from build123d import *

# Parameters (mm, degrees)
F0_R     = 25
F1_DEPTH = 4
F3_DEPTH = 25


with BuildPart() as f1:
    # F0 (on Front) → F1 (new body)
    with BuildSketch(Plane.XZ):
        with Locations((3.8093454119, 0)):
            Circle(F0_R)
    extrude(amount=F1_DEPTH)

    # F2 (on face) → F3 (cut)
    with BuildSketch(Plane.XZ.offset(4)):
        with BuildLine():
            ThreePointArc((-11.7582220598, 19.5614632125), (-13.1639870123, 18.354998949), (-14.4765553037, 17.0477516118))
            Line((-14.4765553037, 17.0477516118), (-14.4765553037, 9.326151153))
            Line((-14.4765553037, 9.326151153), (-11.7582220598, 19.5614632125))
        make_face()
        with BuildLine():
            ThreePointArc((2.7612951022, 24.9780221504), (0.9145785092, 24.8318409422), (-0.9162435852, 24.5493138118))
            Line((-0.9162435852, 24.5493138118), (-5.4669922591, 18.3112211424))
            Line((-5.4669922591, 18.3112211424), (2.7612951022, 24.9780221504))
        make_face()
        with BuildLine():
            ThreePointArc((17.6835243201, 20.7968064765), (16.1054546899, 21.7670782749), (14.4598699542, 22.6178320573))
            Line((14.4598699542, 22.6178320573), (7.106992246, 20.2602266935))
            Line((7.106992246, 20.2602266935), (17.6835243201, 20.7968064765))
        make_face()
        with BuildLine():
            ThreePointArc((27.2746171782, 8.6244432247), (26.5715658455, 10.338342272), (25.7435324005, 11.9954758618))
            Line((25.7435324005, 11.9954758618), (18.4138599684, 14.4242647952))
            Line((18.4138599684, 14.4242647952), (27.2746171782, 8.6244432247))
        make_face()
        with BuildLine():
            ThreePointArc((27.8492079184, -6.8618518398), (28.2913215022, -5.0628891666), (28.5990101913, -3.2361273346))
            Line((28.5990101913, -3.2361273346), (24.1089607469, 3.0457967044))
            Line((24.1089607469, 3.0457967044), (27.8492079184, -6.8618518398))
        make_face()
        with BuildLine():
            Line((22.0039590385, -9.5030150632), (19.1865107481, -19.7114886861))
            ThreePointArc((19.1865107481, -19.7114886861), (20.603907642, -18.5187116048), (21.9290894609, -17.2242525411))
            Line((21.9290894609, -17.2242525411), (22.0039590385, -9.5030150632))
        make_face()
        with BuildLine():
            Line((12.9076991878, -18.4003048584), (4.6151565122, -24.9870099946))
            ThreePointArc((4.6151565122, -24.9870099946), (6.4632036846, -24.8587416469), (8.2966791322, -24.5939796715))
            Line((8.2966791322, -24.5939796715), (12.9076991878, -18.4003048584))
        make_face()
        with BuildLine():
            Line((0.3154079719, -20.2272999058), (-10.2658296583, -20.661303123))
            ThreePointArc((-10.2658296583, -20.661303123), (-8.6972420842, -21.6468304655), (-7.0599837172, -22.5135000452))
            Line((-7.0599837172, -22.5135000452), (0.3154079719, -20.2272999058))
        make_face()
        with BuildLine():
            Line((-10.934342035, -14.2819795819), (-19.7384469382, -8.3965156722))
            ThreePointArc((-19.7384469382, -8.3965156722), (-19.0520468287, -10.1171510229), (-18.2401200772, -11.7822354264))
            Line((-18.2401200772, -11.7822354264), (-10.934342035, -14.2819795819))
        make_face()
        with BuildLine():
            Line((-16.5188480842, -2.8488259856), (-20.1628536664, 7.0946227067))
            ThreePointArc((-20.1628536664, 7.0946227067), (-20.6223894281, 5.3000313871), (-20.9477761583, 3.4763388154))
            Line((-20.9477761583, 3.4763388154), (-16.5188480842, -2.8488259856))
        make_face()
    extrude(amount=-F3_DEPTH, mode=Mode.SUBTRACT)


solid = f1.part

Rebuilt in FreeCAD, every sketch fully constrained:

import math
import FreeCAD as App
import Part
import Sketcher
Q = App.Units.Quantity

doc = App.newDocument("Part")
body = doc.addObject("PartDesign::Body", "Body")

# Sketch on XZ plane
sketch1 = body.newObject("Sketcher::SketchObject", "Sketch")
sketch1.AttachmentSupport = (doc.getObject("XZ_Plane"), [""])
sketch1.MapMode = "FlatFace"
sketch1.addGeometry(Part.Circle(App.Vector(3.809345, 0, 0), App.Vector(0, 0, 1), 25), False)
sketch1.addConstraint([
    Sketcher.Constraint("PointOnObject", 0, 3, -1),
    Sketcher.Constraint("Diameter", 0, 50.0),
    Sketcher.Constraint("DistanceX", -1, 1, 0, 3, 3.809345),
])
pad1 = body.newObject("PartDesign::Pad", "Pad")
pad1.Profile = sketch1
pad1.Length = 4

# Sketch on XZ plane
sketch2 = body.newObject("Sketcher::SketchObject", "Sketch001")
sketch2.AttachmentSupport = (doc.getObject("XZ_Plane"), [""])
sketch2.MapMode = "FlatFace"
sketch2.AttachmentOffset = App.Placement(App.Vector(0, 0, 4), App.Rotation())
sketch2.addGeometry([
    Part.ArcOfCircle(Part.Circle(App.Vector(3.809345, 0, 0), App.Vector(0, 0, 1), 25), math.radians(128.51377), math.radians(137.006917)),  # 0
    Part.LineSegment(App.Vector(-14.476555, 17.047752, 0), App.Vector(-14.476555, 9.326151, 0)),  # 1
    Part.LineSegment(App.Vector(-14.476555, 9.326151, 0), App.Vector(-11.758222, 19.561463, 0)),  # 2
    Part.ArcOfCircle(Part.Circle(App.Vector(3.809345, 0, 0), App.Vector(0, 0, 1), 25), math.radians(92.402658), math.radians(100.895806)),  # 3
    Part.LineSegment(App.Vector(-0.916244, 24.549314, 0), App.Vector(-5.466992, 18.311221, 0)),  # 4
    Part.LineSegment(App.Vector(-5.466992, 18.311221, 0), App.Vector(2.761295, 24.978022, 0)),  # 5
    Part.ArcOfCircle(Part.Circle(App.Vector(3.809345, 0, 0), App.Vector(0, 0, 1), 25), math.radians(56.291547), math.radians(64.784695)),  # 6
    Part.LineSegment(App.Vector(14.45987, 22.617832, 0), App.Vector(7.106992, 20.260227, 0)),  # 7
    Part.LineSegment(App.Vector(7.106992, 20.260227, 0), App.Vector(17.683524, 20.796806, 0)),  # 8
    Part.ArcOfCircle(Part.Circle(App.Vector(3.809345, 0, 0), App.Vector(0, 0, 1), 25), math.radians(20.180436), math.radians(28.673584)),  # 9
    Part.LineSegment(App.Vector(25.743532, 11.995476, 0), App.Vector(18.41386, 14.424265, 0)),  # 10
    Part.LineSegment(App.Vector(18.41386, 14.424265, 0), App.Vector(27.274617, 8.624443, 0)),  # 11
    Part.ArcOfCircle(Part.Circle(App.Vector(3.809345, 0, 0), App.Vector(0, 0, 1), 25), math.radians(-15.930675), math.radians(-7.437528)),  # 12
    Part.LineSegment(App.Vector(28.59901, -3.236127, 0), App.Vector(24.108961, 3.045797, 0)),  # 13
    Part.LineSegment(App.Vector(24.108961, 3.045797, 0), App.Vector(27.849208, -6.861852, 0)),  # 14
    Part.LineSegment(App.Vector(22.003959, -9.503015, 0), App.Vector(19.186511, -19.711489, 0)),  # 15
    Part.ArcOfCircle(Part.Circle(App.Vector(3.809345, 0, 0), App.Vector(0, 0, 1), 25), math.radians(-52.041786), math.radians(-43.548639)),  # 16
    Part.LineSegment(App.Vector(21.929089, -17.224253, 0), App.Vector(22.003959, -9.503015, 0)),  # 17
    Part.LineSegment(App.Vector(12.907699, -18.400305, 0), App.Vector(4.615157, -24.98701, 0)),  # 18
    Part.ArcOfCircle(Part.Circle(App.Vector(3.809345, 0, 0), App.Vector(0, 0, 1), 25), math.radians(-88.152897), math.radians(-79.65975)),  # 19
    Part.LineSegment(App.Vector(8.296679, -24.59398, 0), App.Vector(12.907699, -18.400305, 0)),  # 20
    Part.LineSegment(App.Vector(0.315408, -20.2273, 0), App.Vector(-10.26583, -20.661303, 0)),  # 21
    Part.ArcOfCircle(Part.Circle(App.Vector(3.809345, 0, 0), App.Vector(0, 0, 1), 25), math.radians(-124.264008), math.radians(-115.770861)),  # 22
    Part.LineSegment(App.Vector(-7.059984, -22.5135, 0), App.Vector(0.315408, -20.2273, 0)),  # 23
    Part.LineSegment(App.Vector(-10.934342, -14.28198, 0), App.Vector(-19.738447, -8.396516, 0)),  # 24
    Part.ArcOfCircle(Part.Circle(App.Vector(3.809345, 0, 0), App.Vector(0, 0, 1), 25), math.radians(-160.375119), math.radians(-151.881972)),  # 25
    Part.LineSegment(App.Vector(-18.24012, -11.782235, 0), App.Vector(-10.934342, -14.28198, 0)),  # 26
    Part.LineSegment(App.Vector(-16.518848, -2.848826, 0), App.Vector(-20.162854, 7.094623, 0)),  # 27
    Part.ArcOfCircle(Part.Circle(App.Vector(3.809345, 0, 0), App.Vector(0, 0, 1), 25), math.radians(163.51377), math.radians(172.006917)),  # 28
    Part.LineSegment(App.Vector(-20.947776, 3.476339, 0), App.Vector(-16.518848, -2.848826, 0)),  # 29
], False)
sketch2.addConstraint([
    Sketcher.Constraint("Coincident", 0, 2, 1, 1),
    Sketcher.Constraint("Coincident", 1, 2, 2, 1),
    Sketcher.Constraint("Coincident", 2, 2, 0, 1),
    Sketcher.Constraint("Coincident", 3, 2, 4, 1),
    Sketcher.Constraint("Coincident", 4, 2, 5, 1),
    Sketcher.Constraint("Coincident", 5, 2, 3, 1),
    Sketcher.Constraint("Coincident", 6, 2, 7, 1),
    Sketcher.Constraint("Coincident", 7, 2, 8, 1),
    Sketcher.Constraint("Coincident", 8, 2, 6, 1),
    Sketcher.Constraint("Coincident", 9, 2, 10, 1),
    Sketcher.Constraint("Coincident", 10, 2, 11, 1),
    Sketcher.Constraint("Coincident", 11, 2, 9, 1),
    Sketcher.Constraint("Coincident", 12, 2, 13, 1),
    Sketcher.Constraint("Coincident", 13, 2, 14, 1),
    Sketcher.Constraint("Coincident", 14, 2, 12, 1),
    Sketcher.Constraint("Coincident", 15, 2, 16, 1),
    Sketcher.Constraint("Coincident", 16, 2, 17, 1),
    Sketcher.Constraint("Coincident", 17, 2, 15, 1),
    Sketcher.Constraint("Coincident", 18, 2, 19, 1),
    Sketcher.Constraint("Coincident", 19, 2, 20, 1),
    Sketcher.Constraint("Coincident", 20, 2, 18, 1),
    Sketcher.Constraint("Coincident", 21, 2, 22, 1),
    Sketcher.Constraint("Coincident", 22, 2, 23, 1),
    Sketcher.Constraint("Coincident", 23, 2, 21, 1),
    Sketcher.Constraint("Coincident", 24, 2, 25, 1),
    Sketcher.Constraint("Coincident", 25, 2, 26, 1),
    Sketcher.Constraint("Coincident", 26, 2, 24, 1),
    Sketcher.Constraint("Coincident", 27, 2, 28, 1),
    Sketcher.Constraint("Coincident", 28, 2, 29, 1),
    Sketcher.Constraint("Coincident", 29, 2, 27, 1),
    Sketcher.Constraint("Vertical", 1),
    Sketcher.Constraint("Coincident", 3, 3, 0, 3),
    Sketcher.Constraint("Coincident", 6, 3, 0, 3),
    Sketcher.Constraint("Coincident", 9, 3, 0, 3),
    Sketcher.Constraint("Coincident", 12, 3, 0, 3),
    Sketcher.Constraint("Coincident", 16, 3, 0, 3),
    Sketcher.Constraint("Coincident", 19, 3, 0, 3),
    Sketcher.Constraint("Coincident", 22, 3, 0, 3),
    Sketcher.Constraint("Coincident", 25, 3, 0, 3),
    Sketcher.Constraint("Coincident", 28, 3, 0, 3),
    Sketcher.Constraint("Equal", 0, 3),
    Sketcher.Constraint("Equal", 3, 6),
    Sketcher.Constraint("Equal", 6, 9),
    Sketcher.Constraint("Equal", 9, 12),
    Sketcher.Constraint("Equal", 12, 16),
    Sketcher.Constraint("Equal", 16, 19),
    Sketcher.Constraint("Equal", 19, 22),
    Sketcher.Constraint("Equal", 22, 25),
    Sketcher.Constraint("Equal", 25, 28),
    Sketcher.Constraint("PointOnObject", 0, 3, -1),
    Sketcher.Constraint("Equal", 2, 5),
    Sketcher.Constraint("Equal", 4, 7),
    Sketcher.Constraint("Equal", 5, 8),
    Sketcher.Constraint("Equal", 7, 10),
    Sketcher.Constraint("Equal", 8, 11),
    Sketcher.Constraint("Equal", 10, 13),
    Sketcher.Constraint("Equal", 11, 14),
    Sketcher.Constraint("Equal", 14, 15),
    Sketcher.Constraint("Equal", 13, 17),
    Sketcher.Constraint("Equal", 15, 18),
    Sketcher.Constraint("Equal", 17, 20),
    Sketcher.Constraint("Equal", 18, 21),
    Sketcher.Constraint("Equal", 20, 23),
    Sketcher.Constraint("Equal", 21, 24),
    Sketcher.Constraint("Equal", 23, 26),
    Sketcher.Constraint("Equal", 24, 27),
    Sketcher.Constraint("Equal", 26, 29),
    Sketcher.Constraint("Radius", 0, 25.0),
    Sketcher.Constraint("Angle", 29, Q("-55 deg")),
    Sketcher.Constraint("DistanceY", 1, 2, 1, 1, 7.7216),
    Sketcher.Constraint("DistanceX", 17, 2, 13, 2, 2.105002),
    Sketcher.Constraint("DistanceY", 21, 2, 20, 2, 2.260998),
    Sketcher.Constraint("Distance", 4, 7.7216),
    Sketcher.Constraint("DistanceX", -1, 1, 20, 2, 12.907699),
    Sketcher.Constraint("DistanceY", 22, 2, -1, 1, 22.5135),
    Sketcher.Constraint("DistanceY", 23, 2, -1, 1, 20.2273),
    Sketcher.Constraint("DistanceX", 0, 2, 12, 3, 18.285901),
    Sketcher.Constraint("DistanceY", 4, 2, 5, 2, 6.666801),
    Sketcher.Constraint("DistanceX", 10, 2, 13, 2, 5.695101),
    Sketcher.Constraint("DistanceX", 15, 2, 12, 2, 9.412499),
    Sketcher.Constraint("DistanceY", 16, 2, 14, 2, 10.362401),
    Sketcher.Constraint("DistanceX", 27, 2, 1, 2, 5.686298),
    Sketcher.Constraint("DistanceY", 27, 2, 4, 2, 11.216598),
    Sketcher.Constraint("DistanceX", 24, 2, 29, 2, 3.219599),
    Sketcher.Constraint("DistanceX", -1, 1, 6, 2, 14.45987),
    Sketcher.Constraint("DistanceX", -1, 1, 10, 2, 18.41386),
    Sketcher.Constraint("DistanceX", -1, 1, 12, 2, 28.59901),
    Sketcher.Constraint("DistanceY", 14, 2, -1, 1, 6.861852),
    Sketcher.Constraint("DistanceX", 25, 2, -1, 1, 18.24012),
    Sketcher.Constraint("DistanceY", 7, 2, 8, 2, 0.53658),
    Sketcher.Constraint("DistanceX", 8, 2, 9, 2, 8.060008),
])
pocket1 = body.newObject("PartDesign::Pocket", "Pocket")
pocket1.Profile = sketch2
pocket1.Length = 25

doc.recompute()
